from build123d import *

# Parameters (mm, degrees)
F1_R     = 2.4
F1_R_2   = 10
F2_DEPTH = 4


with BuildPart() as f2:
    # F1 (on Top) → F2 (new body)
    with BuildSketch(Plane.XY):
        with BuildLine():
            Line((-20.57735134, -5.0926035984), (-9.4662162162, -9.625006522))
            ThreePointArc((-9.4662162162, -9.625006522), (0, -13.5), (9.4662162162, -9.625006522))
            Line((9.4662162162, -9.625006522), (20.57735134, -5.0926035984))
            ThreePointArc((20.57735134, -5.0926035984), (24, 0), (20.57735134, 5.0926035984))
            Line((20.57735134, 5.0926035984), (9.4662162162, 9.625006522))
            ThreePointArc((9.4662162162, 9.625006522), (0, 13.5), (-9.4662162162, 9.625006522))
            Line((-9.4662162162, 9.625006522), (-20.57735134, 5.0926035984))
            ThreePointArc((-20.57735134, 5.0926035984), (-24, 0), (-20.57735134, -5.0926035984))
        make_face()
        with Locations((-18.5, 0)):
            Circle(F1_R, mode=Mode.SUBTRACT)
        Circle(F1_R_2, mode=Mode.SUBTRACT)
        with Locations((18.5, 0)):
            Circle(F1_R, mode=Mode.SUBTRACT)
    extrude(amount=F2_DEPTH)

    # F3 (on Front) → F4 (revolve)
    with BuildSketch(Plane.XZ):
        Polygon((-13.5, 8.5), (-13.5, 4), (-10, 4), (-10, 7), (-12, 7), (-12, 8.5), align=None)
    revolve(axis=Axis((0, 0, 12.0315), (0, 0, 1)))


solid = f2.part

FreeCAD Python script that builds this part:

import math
import FreeCAD as App
import Part
import Sketcher
Q = App.Units.Quantity


def add_polygon(sketch, points):
    """Adds a closed chain of lines whose ends are joined by coincident constraints."""
    first, n = sketch.GeometryCount, len(points)
    for a, b in zip(points, points[1:] + points[:1]):
        sketch.addGeometry(Part.LineSegment(App.Vector(*a, 0), App.Vector(*b, 0)), False)
    for i in range(n):
        sketch.addConstraint(Sketcher.Constraint("Coincident", first + i, 2, first + (i + 1) % n, 1))

doc = App.newDocument("Part")
body = doc.addObject("PartDesign::Body", "Body")

# Sketch on XY plane
sketch1 = body.newObject("Sketcher::SketchObject", "Sketch")
sketch1.AttachmentSupport = (doc.getObject("XY_Plane"), [""])
sketch1.MapMode = "FlatFace"
sketch1.addGeometry([
    Part.LineSegment(App.Vector(-20.6, -5.1, 0), App.Vector(-9.5, -9.6, 0)),  # 0
    Part.ArcOfCircle(Part.Circle(App.Vector(0, 0, 0), App.Vector(0, 0, 1), 13.5), math.radians(-135), math.radians(-45)),  # 1
    Part.LineSegment(App.Vector(9.5, -9.6, 0), App.Vector(20.6, -5.1, 0)),  # 2
    Part.ArcOfCircle(Part.Circle(App.Vector(18.5, 0, 0), App.Vector(0, 0, 1), 5.5), math.radians(-68), math.radians(68)),  # 3
    Part.LineSegment(App.Vector(20.6, 5.1, 0), App.Vector(9.5, 9.6, 0)),  # 4
    Part.ArcOfCircle(Part.Circle(App.Vector(0, 0, 0), App.Vector(0, 0, 1), 13.5), math.radians(45), math.radians(135)),  # 5
    Part.LineSegment(App.Vector(-9.5, 9.6, 0), App.Vector(-20.6, 5.1, 0)),  # 6
    Part.ArcOfCircle(Part.Circle(App.Vector(-18.5, 0, 0), App.Vector(0, 0, 1), 5.5), math.radians(112), math.radians(248)),  # 7
    Part.Circle(App.Vector(-18.5, 0, 0), App.Vector(0, 0, 1), 2.4),  # 8
    Part.Circle(App.Vector(0, 0, 0), App.Vector(0, 0, 1), 10),  # 9
    Part.Circle(App.Vector(18.5, 0, 0), App.Vector(0, 0, 1), 2.4),  # 10
], False)
sketch1.addConstraint([
    Sketcher.Constraint("Coincident", 0, 2, 1, 1),
    Sketcher.Constraint("Coincident", 1, 2, 2, 1),
    Sketcher.Constraint("Tangent", 2, 2, 3, 1),
    Sketcher.Constraint("Tangent", 3, 2, 4, 1),
    Sketcher.Constraint("Coincident", 4, 2, 5, 1),
    Sketcher.Constraint("Coincident", 5, 2, 6, 1),
    Sketcher.Constraint("Tangent", 6, 2, 7, 1),
    Sketcher.Constraint("Tangent", 7, 2, 0, 1),
    Sketcher.Constraint("Coincident", 1, 3, -1, 1),
    Sketcher.Constraint("Coincident", 5, 3, -1, 1),
    Sketcher.Constraint("Coincident", 9, 3, -1, 1),
    Sketcher.Constraint("Coincident", 8, 3, 7, 3),
    Sketcher.Constraint("Coincident", 10, 3, 3, 3),
    Sketcher.Constraint("Equal", 1, 5),
    Sketcher.Constraint("Equal", 3, 7),
    Sketcher.Constraint("Equal", 8, 10),
    Sketcher.Constraint("Symmetric", 3, 3, 7, 3, -1, 1),
    Sketcher.Constraint("Symmetric", 3, 2, 6, 2, -2),
    Sketcher.Constraint("Parallel", 0, 4),
    Sketcher.Constraint("Parallel", 2, 6),
    Sketcher.Constraint("Diameter", 9, Q("20 mm")),
    Sketcher.Constraint("Diameter", 8, Q("4.8 mm")),
    Sketcher.Constraint("Radius", 1, Q("13.5 mm")),
    Sketcher.Constraint("Radius", 3, Q("5.5 mm")),
    Sketcher.Constraint("Distance", 0, Q("12 mm")),
    Sketcher.Constraint("DistanceX", 7, 3, 3, 3, Q("37 mm")),
])
pad1 = body.newObject("PartDesign::Pad", "Pad")
pad1.Profile = sketch1
pad1.Length = 4

# Sketch on XZ plane
sketch2 = body.newObject("Sketcher::SketchObject", "Sketch001")
sketch2.AttachmentSupport = (doc.getObject("XZ_Plane"), [""])
sketch2.MapMode = "FlatFace"
add_polygon(sketch2, [(-13.5, 8.5), (-13.5, 4), (-10, 4), (-10, 7), (-12, 7), (-12, 8.5)])  # lines 0-5
sketch2.addConstraint([
    Sketcher.Constraint("Vertical", 0),
    Sketcher.Constraint("Horizontal", 1),
    Sketcher.Constraint("Vertical", 2),
    Sketcher.Constraint("Horizontal", 3),
    Sketcher.Constraint("Vertical", 4),
    Sketcher.Constraint("Horizontal", 5),
    Sketcher.Constraint("Equal", 5, 4),
    Sketcher.Constraint("DistanceX", 3, 2, 3, 1, Q("2 mm")),
    Sketcher.Constraint("DistanceY", 2, 1, 2, 2, Q("3 mm")),
    Sketcher.Constraint("DistanceX", 1, 1, 1, 2, Q("3.5 mm")),
    Sketcher.Constraint("DistanceY", -1, 1, 0, 2, Q("4 mm")),
    Sketcher.Constraint("DistanceX", 1, 2, -1, 1, Q("10 mm")),
])
revolution = body.newObject("PartDesign::Revolution", "Revolution")
revolution.Profile = sketch2
revolution.ReferenceAxis = (sketch2, ["V_Axis"])
revolution.Angle = 360

doc.recompute()
